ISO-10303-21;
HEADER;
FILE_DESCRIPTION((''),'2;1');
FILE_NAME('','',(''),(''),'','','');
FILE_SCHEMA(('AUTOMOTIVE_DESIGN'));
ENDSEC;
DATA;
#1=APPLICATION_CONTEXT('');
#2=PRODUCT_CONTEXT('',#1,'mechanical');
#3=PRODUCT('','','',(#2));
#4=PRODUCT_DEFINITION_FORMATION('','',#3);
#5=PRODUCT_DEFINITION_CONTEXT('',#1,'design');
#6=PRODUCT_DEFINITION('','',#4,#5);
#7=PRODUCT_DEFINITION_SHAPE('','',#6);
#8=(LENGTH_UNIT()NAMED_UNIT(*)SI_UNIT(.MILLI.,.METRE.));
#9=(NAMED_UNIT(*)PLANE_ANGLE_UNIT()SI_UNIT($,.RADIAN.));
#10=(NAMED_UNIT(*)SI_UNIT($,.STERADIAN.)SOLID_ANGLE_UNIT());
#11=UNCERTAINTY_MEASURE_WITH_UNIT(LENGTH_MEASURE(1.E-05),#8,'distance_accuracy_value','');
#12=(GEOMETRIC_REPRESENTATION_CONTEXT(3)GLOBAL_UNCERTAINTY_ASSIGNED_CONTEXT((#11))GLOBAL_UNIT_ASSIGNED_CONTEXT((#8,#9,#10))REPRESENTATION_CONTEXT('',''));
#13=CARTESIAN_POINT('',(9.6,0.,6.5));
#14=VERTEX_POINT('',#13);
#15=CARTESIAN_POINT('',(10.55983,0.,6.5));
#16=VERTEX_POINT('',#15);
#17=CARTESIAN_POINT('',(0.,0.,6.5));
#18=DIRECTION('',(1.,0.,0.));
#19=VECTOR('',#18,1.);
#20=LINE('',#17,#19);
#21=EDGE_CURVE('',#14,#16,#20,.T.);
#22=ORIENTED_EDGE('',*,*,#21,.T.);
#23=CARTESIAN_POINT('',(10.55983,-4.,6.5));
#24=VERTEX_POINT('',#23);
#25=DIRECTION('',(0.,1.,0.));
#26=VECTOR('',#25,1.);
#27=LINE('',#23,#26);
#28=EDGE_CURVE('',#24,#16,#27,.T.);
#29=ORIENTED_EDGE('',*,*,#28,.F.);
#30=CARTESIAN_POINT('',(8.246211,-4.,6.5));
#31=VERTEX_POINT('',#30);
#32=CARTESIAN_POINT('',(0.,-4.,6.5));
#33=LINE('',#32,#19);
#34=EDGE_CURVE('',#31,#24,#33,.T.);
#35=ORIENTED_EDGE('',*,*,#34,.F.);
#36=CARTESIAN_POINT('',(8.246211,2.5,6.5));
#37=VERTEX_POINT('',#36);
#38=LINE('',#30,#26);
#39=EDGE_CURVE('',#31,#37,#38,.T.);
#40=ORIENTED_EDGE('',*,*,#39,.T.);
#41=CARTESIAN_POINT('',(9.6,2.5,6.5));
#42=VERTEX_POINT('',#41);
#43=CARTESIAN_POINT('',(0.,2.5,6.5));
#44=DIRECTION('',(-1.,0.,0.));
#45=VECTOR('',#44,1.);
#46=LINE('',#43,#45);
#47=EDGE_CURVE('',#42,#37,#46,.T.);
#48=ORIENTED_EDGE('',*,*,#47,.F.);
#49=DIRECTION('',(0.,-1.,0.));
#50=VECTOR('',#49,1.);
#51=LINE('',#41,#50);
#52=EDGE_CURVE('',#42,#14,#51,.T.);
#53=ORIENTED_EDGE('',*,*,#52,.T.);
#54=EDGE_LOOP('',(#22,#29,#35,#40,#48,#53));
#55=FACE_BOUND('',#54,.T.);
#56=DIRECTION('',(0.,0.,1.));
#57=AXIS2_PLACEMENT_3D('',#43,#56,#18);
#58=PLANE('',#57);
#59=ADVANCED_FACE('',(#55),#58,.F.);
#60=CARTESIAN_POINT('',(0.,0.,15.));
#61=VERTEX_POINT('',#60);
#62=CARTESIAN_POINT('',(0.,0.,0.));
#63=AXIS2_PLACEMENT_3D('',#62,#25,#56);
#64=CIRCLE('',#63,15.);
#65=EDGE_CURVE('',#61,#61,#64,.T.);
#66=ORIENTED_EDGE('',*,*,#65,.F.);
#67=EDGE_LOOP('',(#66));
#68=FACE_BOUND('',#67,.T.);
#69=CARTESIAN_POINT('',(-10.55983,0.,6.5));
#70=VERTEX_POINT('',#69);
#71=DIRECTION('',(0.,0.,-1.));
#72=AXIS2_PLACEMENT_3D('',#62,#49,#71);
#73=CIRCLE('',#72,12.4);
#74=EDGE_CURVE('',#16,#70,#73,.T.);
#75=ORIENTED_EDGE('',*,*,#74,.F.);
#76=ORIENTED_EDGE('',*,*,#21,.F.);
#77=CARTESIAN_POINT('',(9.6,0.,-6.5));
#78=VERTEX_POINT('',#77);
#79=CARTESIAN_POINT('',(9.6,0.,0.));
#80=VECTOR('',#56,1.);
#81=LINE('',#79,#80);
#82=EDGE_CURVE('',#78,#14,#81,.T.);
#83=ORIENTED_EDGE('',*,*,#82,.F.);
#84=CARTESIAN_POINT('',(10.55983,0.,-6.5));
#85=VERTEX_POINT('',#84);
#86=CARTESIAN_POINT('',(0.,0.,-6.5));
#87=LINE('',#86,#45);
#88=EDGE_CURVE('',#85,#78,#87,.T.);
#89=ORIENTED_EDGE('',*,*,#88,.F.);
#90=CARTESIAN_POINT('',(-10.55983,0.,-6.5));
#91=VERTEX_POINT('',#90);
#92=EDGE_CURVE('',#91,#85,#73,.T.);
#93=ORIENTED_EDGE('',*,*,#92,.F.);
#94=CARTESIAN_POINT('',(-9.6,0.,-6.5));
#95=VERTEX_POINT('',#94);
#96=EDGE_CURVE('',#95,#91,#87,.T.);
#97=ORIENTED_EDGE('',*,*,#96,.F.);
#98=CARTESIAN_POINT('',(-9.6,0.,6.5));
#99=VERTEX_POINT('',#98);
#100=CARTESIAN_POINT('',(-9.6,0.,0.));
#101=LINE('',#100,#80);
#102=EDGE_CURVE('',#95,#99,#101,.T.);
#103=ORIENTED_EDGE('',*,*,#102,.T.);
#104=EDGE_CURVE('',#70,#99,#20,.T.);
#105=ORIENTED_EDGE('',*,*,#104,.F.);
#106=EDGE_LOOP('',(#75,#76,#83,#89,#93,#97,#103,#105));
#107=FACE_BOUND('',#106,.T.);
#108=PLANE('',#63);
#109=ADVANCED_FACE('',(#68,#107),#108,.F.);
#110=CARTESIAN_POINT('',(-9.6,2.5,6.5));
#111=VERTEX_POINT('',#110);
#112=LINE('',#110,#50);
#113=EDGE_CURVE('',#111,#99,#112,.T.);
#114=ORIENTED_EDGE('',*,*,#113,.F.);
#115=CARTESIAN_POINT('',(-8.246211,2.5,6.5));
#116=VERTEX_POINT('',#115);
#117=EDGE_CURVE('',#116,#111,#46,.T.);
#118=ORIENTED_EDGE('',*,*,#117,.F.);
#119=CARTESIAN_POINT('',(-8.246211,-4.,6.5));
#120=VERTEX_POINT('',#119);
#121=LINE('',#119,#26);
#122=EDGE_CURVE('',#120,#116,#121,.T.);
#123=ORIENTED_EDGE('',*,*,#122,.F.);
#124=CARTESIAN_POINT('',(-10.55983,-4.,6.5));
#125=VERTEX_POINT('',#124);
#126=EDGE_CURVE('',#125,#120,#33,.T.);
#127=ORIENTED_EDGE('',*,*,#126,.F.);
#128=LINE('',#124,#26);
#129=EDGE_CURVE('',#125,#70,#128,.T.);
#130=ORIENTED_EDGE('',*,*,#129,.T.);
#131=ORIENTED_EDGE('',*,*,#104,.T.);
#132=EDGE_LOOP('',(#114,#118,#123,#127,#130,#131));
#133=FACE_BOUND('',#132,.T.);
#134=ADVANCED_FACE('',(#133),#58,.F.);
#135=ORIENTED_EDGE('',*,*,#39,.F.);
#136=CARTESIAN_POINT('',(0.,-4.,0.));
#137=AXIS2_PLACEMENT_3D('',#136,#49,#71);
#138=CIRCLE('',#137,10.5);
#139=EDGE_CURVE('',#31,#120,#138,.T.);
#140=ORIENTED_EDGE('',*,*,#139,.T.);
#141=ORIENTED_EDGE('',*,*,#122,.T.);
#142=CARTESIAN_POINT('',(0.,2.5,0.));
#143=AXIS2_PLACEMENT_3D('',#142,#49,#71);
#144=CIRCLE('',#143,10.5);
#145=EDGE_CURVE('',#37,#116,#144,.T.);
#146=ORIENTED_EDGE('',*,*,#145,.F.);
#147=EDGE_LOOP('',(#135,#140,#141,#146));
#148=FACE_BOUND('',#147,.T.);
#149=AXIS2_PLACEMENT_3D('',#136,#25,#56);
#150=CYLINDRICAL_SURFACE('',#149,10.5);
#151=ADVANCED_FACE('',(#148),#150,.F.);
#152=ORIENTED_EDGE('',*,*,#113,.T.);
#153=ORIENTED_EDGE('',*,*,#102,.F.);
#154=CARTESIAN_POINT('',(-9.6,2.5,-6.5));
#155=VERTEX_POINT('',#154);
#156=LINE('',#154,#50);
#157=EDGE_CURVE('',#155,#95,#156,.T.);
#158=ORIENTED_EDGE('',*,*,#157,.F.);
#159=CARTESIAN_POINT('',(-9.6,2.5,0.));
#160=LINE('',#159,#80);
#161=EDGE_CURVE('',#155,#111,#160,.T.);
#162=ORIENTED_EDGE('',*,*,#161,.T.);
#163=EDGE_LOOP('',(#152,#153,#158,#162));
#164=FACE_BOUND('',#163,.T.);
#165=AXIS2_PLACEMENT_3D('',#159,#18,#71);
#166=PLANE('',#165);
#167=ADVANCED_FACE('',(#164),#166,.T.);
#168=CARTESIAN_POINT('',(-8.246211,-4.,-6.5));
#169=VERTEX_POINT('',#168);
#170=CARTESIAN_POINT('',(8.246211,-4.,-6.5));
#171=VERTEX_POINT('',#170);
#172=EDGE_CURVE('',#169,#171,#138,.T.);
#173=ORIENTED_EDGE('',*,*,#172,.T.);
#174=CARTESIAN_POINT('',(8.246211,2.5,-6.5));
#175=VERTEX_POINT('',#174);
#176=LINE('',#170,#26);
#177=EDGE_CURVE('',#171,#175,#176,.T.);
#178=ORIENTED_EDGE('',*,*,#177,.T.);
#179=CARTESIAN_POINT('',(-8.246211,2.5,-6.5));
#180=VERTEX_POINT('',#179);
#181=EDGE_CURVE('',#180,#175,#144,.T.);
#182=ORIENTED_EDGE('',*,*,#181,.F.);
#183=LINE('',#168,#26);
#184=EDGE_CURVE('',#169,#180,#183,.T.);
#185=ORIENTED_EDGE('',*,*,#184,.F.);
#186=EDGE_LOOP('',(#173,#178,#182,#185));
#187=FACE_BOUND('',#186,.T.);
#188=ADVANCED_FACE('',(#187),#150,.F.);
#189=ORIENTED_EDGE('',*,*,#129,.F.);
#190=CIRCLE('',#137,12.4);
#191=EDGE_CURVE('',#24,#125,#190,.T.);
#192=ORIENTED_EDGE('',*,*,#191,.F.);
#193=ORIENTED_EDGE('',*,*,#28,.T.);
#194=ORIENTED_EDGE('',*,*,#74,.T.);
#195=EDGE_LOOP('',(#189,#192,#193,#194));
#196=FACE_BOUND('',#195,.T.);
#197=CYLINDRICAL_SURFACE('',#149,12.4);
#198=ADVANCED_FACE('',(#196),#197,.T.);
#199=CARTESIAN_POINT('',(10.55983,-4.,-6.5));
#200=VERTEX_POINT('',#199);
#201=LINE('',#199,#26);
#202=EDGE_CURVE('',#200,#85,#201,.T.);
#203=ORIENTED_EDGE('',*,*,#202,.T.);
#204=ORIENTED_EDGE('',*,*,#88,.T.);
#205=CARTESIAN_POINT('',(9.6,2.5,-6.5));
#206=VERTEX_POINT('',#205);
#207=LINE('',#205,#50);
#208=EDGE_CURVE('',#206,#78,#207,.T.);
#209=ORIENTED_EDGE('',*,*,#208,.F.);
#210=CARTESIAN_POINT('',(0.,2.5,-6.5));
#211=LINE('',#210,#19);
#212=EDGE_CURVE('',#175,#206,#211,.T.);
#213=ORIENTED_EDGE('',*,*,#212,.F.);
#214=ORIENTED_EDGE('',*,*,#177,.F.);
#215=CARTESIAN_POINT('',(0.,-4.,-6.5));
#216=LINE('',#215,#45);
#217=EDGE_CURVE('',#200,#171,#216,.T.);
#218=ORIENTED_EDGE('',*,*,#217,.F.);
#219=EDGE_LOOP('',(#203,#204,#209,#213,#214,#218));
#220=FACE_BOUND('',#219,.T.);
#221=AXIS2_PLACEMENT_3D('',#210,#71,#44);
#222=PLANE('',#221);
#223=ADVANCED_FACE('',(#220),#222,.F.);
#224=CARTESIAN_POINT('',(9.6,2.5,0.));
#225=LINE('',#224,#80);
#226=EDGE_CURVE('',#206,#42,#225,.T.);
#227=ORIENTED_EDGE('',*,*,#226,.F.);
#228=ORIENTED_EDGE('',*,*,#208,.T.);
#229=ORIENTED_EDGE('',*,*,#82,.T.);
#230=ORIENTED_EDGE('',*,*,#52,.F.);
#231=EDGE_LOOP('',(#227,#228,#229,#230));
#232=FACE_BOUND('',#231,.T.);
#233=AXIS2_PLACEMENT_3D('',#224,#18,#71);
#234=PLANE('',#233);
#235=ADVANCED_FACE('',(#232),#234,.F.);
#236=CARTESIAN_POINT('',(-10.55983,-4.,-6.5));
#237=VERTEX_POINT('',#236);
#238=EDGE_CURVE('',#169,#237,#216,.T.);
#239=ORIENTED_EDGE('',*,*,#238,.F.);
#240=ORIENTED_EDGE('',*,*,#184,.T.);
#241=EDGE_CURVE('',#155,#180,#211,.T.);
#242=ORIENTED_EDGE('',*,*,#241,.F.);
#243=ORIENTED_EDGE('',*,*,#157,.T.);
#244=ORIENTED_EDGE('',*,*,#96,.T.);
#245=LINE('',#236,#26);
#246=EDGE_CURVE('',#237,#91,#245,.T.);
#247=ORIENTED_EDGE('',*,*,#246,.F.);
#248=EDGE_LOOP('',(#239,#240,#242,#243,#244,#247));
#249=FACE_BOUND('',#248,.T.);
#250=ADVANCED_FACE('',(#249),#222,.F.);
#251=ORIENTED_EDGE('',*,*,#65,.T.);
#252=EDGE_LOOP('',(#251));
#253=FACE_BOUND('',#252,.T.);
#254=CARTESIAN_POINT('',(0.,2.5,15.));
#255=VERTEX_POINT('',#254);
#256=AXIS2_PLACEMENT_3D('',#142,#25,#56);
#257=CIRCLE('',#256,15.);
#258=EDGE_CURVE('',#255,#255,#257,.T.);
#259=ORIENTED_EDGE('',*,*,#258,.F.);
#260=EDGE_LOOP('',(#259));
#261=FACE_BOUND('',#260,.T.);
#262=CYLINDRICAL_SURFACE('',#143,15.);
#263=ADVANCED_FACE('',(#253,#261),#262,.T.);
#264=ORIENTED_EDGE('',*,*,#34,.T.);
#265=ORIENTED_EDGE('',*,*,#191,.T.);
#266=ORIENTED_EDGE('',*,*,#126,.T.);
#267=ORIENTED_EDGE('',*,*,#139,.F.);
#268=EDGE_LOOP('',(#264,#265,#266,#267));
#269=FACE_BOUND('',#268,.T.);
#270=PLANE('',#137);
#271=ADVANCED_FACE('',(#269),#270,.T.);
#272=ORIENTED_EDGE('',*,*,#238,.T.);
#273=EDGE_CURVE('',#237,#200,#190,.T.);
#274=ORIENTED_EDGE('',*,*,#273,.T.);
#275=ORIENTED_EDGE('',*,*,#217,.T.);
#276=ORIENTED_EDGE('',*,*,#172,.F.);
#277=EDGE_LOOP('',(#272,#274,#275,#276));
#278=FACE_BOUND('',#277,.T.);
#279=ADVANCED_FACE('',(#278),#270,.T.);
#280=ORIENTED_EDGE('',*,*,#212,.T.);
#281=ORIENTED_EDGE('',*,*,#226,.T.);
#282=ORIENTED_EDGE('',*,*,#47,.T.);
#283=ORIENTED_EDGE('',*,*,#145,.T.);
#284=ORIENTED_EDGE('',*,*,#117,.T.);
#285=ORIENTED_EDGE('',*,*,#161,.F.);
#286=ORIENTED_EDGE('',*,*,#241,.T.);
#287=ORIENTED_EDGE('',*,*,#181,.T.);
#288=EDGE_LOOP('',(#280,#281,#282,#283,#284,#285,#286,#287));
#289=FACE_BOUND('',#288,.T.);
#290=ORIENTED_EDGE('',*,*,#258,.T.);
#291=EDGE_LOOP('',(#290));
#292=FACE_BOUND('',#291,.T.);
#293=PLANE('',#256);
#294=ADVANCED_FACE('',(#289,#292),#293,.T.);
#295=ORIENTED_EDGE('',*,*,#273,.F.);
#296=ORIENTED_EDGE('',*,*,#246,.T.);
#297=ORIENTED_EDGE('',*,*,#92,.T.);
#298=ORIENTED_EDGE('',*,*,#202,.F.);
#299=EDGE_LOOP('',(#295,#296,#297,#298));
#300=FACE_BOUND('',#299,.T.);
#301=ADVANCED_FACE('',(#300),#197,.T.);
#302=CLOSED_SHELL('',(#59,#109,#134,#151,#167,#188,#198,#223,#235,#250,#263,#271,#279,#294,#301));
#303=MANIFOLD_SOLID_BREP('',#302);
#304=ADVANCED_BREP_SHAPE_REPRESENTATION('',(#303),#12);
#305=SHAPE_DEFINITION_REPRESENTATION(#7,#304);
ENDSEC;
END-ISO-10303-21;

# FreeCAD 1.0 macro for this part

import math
import FreeCAD as App
import Part
import Sketcher

V = App.Vector
Q = App.Units.Quantity

doc = App.newDocument("Part")
body = doc.addObject("PartDesign::Body", "Body")

# Sketch on XZ plane
sketch1 = doc.addObject("Sketcher::SketchObject", "Sketch")
body.addObject(sketch1)
sketch1.AttachmentSupport = (doc.XZ_Plane, [""])
sketch1.MapMode = "FlatFace"
sketch1.addGeometry([
    Part.ArcOfCircle(Part.Circle(V(0, 0, 0), V(0, 0, 1), 15), math.radians(-154), math.radians(-26)),  # 0
    Part.ArcOfCircle(Part.Circle(V(0, 0, 0), V(0, 0, 1), 15), math.radians(154), math.radians(206)),  # 1
    Part.ArcOfCircle(Part.Circle(V(0, 0, 0), V(0, 0, 1), 15), math.radians(26), math.radians(154)),  # 2
    Part.ArcOfCircle(Part.Circle(V(0, 0, 0), V(0, 0, 1), 15), math.radians(0), math.radians(26)),  # 3
    Part.ArcOfCircle(Part.Circle(V(0, 0, 0), V(0, 0, 1), 15), math.radians(-26), math.radians(0)),  # 4
    Part.LineSegment(V(-10, 6, 0), V(-10, -6, 0)),  # 5
    Part.LineSegment(V(-10, -6, 0), V(10, -6, 0)),  # 6
    Part.LineSegment(V(10, -6, 0), V(10, 6, 0)),  # 7
    Part.LineSegment(V(10, 6, 0), V(-10, 6, 0)),  # 8
], False)
sketch1.addConstraint([
    Sketcher.Constraint("Tangent", 0, 1, 1, 2),
    Sketcher.Constraint("Tangent", 1, 1, 2, 2),
    Sketcher.Constraint("Tangent", 2, 1, 3, 2),
    Sketcher.Constraint("Tangent", 3, 1, 4, 2),
    Sketcher.Constraint("Tangent", 4, 1, 0, 2),
    Sketcher.Constraint("Coincident", 5, 2, 6, 1),
    Sketcher.Constraint("Coincident", 6, 2, 7, 1),
    Sketcher.Constraint("Coincident", 7, 2, 8, 1),
    Sketcher.Constraint("Coincident", 8, 2, 5, 1),
    Sketcher.Constraint("Vertical", 5),
    Sketcher.Constraint("Horizontal", 6),
    Sketcher.Constraint("Vertical", 7),
    Sketcher.Constraint("Horizontal", 8),
    Sketcher.Constraint("Coincident", 0, 3, -1, 1),
    Sketcher.Constraint("Coincident", 2, 3, -1, 1),
    Sketcher.Constraint("Symmetric", 5, 2, 7, 2, -1, 1),
    Sketcher.Constraint("PointOnObject", 3, 1, -1),
    Sketcher.Constraint("Horizontal", 1, 1, 2, 1),
    Sketcher.Constraint("Horizontal", 0, 1, 4, 1),
    Sketcher.Constraint("Horizontal", 4, 1, 5, 2),
    Sketcher.Constraint("Horizontal", 2, 1, 7, 2),
    Sketcher.Constraint("Radius", 0, Q("15 mm")),
    Sketcher.Constraint("DistanceY", 5, 2, 5, 1, Q("13 mm")),
    Sketcher.Constraint("DistanceX", 6, 1, 6, 2, Q("19.2 mm")),
])
pad1 = doc.addObject("PartDesign::Pad", "Pad")
body.addObject(pad1)
pad1.Profile = sketch1
pad1.Length = 2.5
pad1.Reversed = True

# Sketch on XZ plane
sketch2 = doc.addObject("Sketcher::SketchObject", "Sketch001")
body.addObject(sketch2)
sketch2.AttachmentSupport = (doc.XZ_Plane, [""])
sketch2.MapMode = "FlatFace"
sketch2.addGeometry([
    Part.ArcOfCircle(Part.Circle(V(0, 0, 0), V(0, 0, 1), 12.4), math.radians(32), math.radians(148)),  # 0
    Part.LineSegment(V(-10.6, 6.5, 0), V(-8.2, 6.5, 0)),  # 1
    Part.ArcOfCircle(Part.Circle(V(0, 0, 0), V(0, 0, 1), 10.5), math.radians(38), math.radians(142)),  # 2
    Part.LineSegment(V(8.2, 6.5, 0), V(10.6, 6.5, 0)),  # 3
    Part.ArcOfCircle(Part.Circle(V(0, 0, 0), V(0, 0, 1), 12.4), math.radians(-148), math.radians(-32)),  # 4
    Part.LineSegment(V(10.6, -6.5, 0), V(8.2, -6.5, 0)),  # 5
    Part.ArcOfCircle(Part.Circle(V(0, 0, 0), V(0, 0, 1), 10.5), math.radians(-142), math.radians(-38)),  # 6
    Part.LineSegment(V(-8.2, -6.5, 0), V(-10.6, -6.5, 0)),  # 7
], False)
sketch2.addConstraint([
    Sketcher.Constraint("Coincident", 0, 2, 1, 1),
    Sketcher.Constraint("Coincident", 1, 2, 2, 2),
    Sketcher.Constraint("Coincident", 2, 1, 3, 1),
    Sketcher.Constraint("Coincident", 3, 2, 0, 1),
    Sketcher.Constraint("Coincident", 4, 2, 5, 1),
    Sketcher.Constraint("Coincident", 5, 2, 6, 2),
    Sketcher.Constraint("Coincident", 6, 1, 7, 1),
    Sketcher.Constraint("Coincident", 7, 2, 4, 1),
    Sketcher.Constraint("Horizontal", 1),
    Sketcher.Constraint("Horizontal", 3),
    Sketcher.Constraint("Horizontal", 5),
    Sketcher.Constraint("Horizontal", 7),
    Sketcher.Constraint("Coincident", 0, 3, -1, 1),
    Sketcher.Constraint("Coincident", 2, 3, -1, 1),
    Sketcher.Constraint("Coincident", 4, 3, -1, 1),
    Sketcher.Constraint("Coincident", 6, 3, -1, 1),
    Sketcher.Constraint("Equal", 0, 4),
    Sketcher.Constraint("Equal", 2, 6),
    Sketcher.Constraint("Horizontal", 1, 2, 2, 1),
    Sketcher.Constraint("Horizontal", 5, 2, 6, 1),
    Sketcher.Constraint("Vertical", 3, 2, 4, 2),
    Sketcher.Constraint("Radius", 0, Q("12.4 mm")),
    Sketcher.Constraint("Radius", 2, Q("10.5 mm")),
    Sketcher.Constraint("DistanceY", 4, 2, 3, 2, Q("13 mm")),
])
pad2 = doc.addObject("PartDesign::Pad", "Pad001")
body.addObject(pad2)
pad2.Profile = sketch2
pad2.Length = 4

# Sketch on XZ plane
sketch3 = doc.addObject("Sketcher::SketchObject", "Sketch002")
body.addObject(sketch3)
sketch3.AttachmentSupport = (doc.XZ_Plane, [""])
sketch3.MapMode = "FlatFace"
sketch3.addGeometry([
    Part.ArcOfCircle(Part.Circle(V(0, 0, 0), V(0, 0, 1), 10), math.radians(38), math.radians(142)),
    Part.LineSegment(V(-8, 6, 0), V(8, 6, 0)),
    Part.LineSegment(V(8, -6, 0), V(-8, -6, 0)),
    Part.ArcOfCircle(Part.Circle(V(0, 0, 0), V(0, 0, 1), 10), math.radians(-142), math.radians(-38)),
], False)
sketch3.addConstraint([
    Sketcher.Constraint("Coincident", 0, 1, 1, 2),
    Sketcher.Constraint("Coincident", 1, 1, 0, 2),
    Sketcher.Constraint("Coincident", 2, 1, 3, 2),
    Sketcher.Constraint("Coincident", 3, 1, 2, 2),
    Sketcher.Constraint("Horizontal", 1),
    Sketcher.Constraint("Horizontal", 2),
    Sketcher.Constraint("Coincident", 0, 3, -1, 1),
    Sketcher.Constraint("Coincident", 3, 3, -1, 1),
    Sketcher.Constraint("Equal", 0, 3),
    Sketcher.Constraint("Vertical", 0, 1, 2, 1),
    Sketcher.Constraint("Radius", 0, Q("10.5 mm")),
    Sketcher.Constraint("DistanceY", 2, 1, 0, 1, Q("13 mm")),
])
pocket1 = doc.addObject("PartDesign::Pocket", "Pocket")
body.addObject(pocket1)
pocket1.Profile = sketch3
pocket1.Type = "ThroughAll"
pocket1.Midplane = True

doc.recompute()
